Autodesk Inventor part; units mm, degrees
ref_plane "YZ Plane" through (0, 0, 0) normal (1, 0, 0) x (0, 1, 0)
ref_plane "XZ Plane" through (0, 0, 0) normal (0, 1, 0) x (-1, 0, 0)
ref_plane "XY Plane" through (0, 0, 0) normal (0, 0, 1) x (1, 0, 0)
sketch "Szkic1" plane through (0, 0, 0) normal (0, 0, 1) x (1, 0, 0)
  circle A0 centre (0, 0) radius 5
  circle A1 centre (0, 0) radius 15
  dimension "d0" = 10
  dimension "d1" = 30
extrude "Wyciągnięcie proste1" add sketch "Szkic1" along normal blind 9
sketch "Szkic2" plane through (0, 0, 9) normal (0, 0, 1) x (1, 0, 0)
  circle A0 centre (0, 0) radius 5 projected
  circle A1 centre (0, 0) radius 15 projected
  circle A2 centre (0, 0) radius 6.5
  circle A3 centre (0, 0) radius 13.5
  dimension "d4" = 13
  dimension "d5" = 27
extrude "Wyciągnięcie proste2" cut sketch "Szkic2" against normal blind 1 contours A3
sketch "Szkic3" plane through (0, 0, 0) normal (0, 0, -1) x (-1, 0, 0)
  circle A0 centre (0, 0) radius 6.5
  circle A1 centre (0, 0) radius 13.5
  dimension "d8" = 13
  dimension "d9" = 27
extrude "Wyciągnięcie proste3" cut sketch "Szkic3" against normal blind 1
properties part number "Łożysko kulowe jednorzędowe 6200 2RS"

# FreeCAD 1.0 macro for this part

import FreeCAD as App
import Part
import Sketcher
Q = App.Units.Quantity

doc = App.newDocument("Part")
params = doc.addObject("Spreadsheet::Sheet", "Params")
for row, (alias, value) in enumerate([
    ("sketch1_diameter", "30 mm"),
    ("sketch1_diameter2", "10 mm"),
    ("pad1_length", "9 mm"),
    ("sketch2_diameter", "27 mm"),
    ("sketch2_diameter2", "13 mm"),
    ("pocket1_length", "1 mm"),
    ("sketch3_diameter", "27 mm"),
    ("sketch3_diameter2", "13 mm"),
    ("pocket2_length", "1 mm"),
], start=1):
    params.set(f"A{row}", alias)
    params.set(f"B{row}", "=" + value)
    params.setAlias(f"B{row}", alias)

body = doc.addObject("PartDesign::Body", "Body")

# Sketch on XY plane
sketch1 = doc.addObject("Sketcher::SketchObject", "Sketch")
body.addObject(sketch1)
sketch1.AttachmentSupport = (doc.XY_Plane, [""])
sketch1.MapMode = "FlatFace"
sketch1.addGeometry([
    Part.Circle(App.Vector(0, 0, 0), App.Vector(0, 0, 1), 15),
    Part.Circle(App.Vector(0, 0, 0), App.Vector(0, 0, 1), 5),
], False)
sketch1.addConstraint([
    Sketcher.Constraint("Coincident", 0, 3, -1, 1),
    Sketcher.Constraint("Coincident", 1, 3, -1, 1),
    Sketcher.Constraint("Diameter", 0, Q("30 mm")),
    Sketcher.Constraint("Diameter", 1, Q("10 mm")),
])
sketch1.setExpression("Constraints[2]", "Params.sketch1_diameter")
sketch1.setExpression("Constraints[3]", "Params.sketch1_diameter2")
pad1 = doc.addObject("PartDesign::Pad", "Pad")
body.addObject(pad1)
pad1.Profile = sketch1
pad1.setExpression("Length", "Params.pad1_length")

# Sketch on XY plane
sketch2 = doc.addObject("Sketcher::SketchObject", "Sketch001")
body.addObject(sketch2)
sketch2.AttachmentSupport = (doc.XY_Plane, [""])
sketch2.MapMode = "FlatFace"
sketch2.AttachmentOffset = App.Placement(App.Vector(0, 0, 9), App.Rotation())
sketch2.addGeometry([
    Part.Circle(App.Vector(0, 0, 0), App.Vector(0, 0, 1), 13.5),
    Part.Circle(App.Vector(0, 0, 0), App.Vector(0, 0, 1), 6.5),
], False)
sketch2.addConstraint([
    Sketcher.Constraint("Coincident", 0, 3, -1, 1),
    Sketcher.Constraint("Coincident", 1, 3, -1, 1),
    Sketcher.Constraint("Diameter", 0, Q("27 mm")),
    Sketcher.Constraint("Diameter", 1, Q("13 mm")),
])
sketch2.setExpression("Constraints[2]", "Params.sketch2_diameter")
sketch2.setExpression("Constraints[3]", "Params.sketch2_diameter2")
pocket1 = doc.addObject("PartDesign::Pocket", "Pocket")
body.addObject(pocket1)
pocket1.Profile = sketch2
pocket1.setExpression("Length", "Params.pocket1_length")

# Sketch on XY plane
sketch3 = doc.addObject("Sketcher::SketchObject", "Sketch002")
body.addObject(sketch3)
sketch3.AttachmentSupport = (doc.XY_Plane, [""])
sketch3.MapMode = "FlatFace"
sketch3.addGeometry([
    Part.Circle(App.Vector(0, 0, 0), App.Vector(0, 0, 1), 13.5),
    Part.Circle(App.Vector(0, 0, 0), App.Vector(0, 0, 1), 6.5),
], False)
sketch3.addConstraint([
    Sketcher.Constraint("Coincident", 0, 3, -1, 1),
    Sketcher.Constraint("Coincident", 1, 3, -1, 1),
    Sketcher.Constraint("Diameter", 0, Q("27 mm")),
    Sketcher.Constraint("Diameter", 1, Q("13 mm")),
])
sketch3.setExpression("Constraints[2]", "Params.sketch3_diameter")
sketch3.setExpression("Constraints[3]", "Params.sketch3_diameter2")
pocket2 = doc.addObject("PartDesign::Pocket", "Pocket001")
body.addObject(pocket2)
pocket2.Profile = sketch3
pocket2.setExpression("Length", "Params.pocket2_length")
pocket2.Reversed = True

doc.recompute()
